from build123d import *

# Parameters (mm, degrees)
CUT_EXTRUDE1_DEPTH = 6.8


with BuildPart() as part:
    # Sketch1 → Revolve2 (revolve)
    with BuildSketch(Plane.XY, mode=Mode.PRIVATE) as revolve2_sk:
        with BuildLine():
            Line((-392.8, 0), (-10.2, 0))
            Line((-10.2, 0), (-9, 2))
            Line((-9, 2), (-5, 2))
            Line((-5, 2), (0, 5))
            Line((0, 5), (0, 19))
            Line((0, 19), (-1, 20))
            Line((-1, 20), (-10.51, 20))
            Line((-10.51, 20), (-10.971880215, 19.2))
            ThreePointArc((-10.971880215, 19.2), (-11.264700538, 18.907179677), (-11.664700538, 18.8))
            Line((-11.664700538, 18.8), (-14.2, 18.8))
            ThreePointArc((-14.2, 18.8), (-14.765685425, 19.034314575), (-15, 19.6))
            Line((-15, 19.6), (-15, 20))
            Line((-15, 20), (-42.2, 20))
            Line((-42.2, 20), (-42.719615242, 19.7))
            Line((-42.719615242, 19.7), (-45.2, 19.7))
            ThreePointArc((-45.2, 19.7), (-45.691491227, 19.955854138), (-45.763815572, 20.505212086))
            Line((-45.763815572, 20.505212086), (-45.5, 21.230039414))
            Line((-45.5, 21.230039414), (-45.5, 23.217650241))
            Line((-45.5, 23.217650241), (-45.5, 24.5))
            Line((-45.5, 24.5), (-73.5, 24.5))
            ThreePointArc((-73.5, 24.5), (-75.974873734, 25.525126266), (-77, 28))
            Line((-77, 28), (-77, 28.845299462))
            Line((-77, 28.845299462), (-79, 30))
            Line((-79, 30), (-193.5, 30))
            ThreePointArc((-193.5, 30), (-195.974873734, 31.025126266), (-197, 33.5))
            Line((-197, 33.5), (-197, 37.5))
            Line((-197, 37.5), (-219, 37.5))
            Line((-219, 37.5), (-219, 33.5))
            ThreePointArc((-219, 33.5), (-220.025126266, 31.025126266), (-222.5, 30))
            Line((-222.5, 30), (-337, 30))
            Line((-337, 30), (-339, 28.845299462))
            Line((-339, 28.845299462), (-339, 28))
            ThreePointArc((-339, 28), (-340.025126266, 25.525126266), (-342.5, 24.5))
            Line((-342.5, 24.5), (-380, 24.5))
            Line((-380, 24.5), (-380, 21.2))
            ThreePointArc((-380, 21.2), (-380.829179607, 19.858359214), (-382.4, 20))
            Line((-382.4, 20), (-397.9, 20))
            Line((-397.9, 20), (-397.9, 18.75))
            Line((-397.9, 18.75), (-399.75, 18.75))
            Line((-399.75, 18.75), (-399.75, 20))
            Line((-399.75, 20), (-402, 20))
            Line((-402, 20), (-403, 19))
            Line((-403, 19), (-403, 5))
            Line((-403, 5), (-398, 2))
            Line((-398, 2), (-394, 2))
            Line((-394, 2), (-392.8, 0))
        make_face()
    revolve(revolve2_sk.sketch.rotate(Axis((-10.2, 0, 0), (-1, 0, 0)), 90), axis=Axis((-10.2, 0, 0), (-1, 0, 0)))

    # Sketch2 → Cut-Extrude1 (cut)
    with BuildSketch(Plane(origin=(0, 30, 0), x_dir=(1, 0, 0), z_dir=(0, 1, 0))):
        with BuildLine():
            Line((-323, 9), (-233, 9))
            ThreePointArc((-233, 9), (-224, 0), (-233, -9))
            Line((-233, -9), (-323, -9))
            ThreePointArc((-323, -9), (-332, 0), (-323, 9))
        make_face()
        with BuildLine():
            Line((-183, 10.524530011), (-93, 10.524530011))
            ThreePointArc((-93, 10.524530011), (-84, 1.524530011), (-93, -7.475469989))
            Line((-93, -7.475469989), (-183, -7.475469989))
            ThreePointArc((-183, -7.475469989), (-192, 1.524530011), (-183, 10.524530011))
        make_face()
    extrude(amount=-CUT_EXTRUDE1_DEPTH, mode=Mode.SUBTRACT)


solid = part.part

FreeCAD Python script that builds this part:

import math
import FreeCAD as App
import Part
import Sketcher
Q = App.Units.Quantity

doc = App.newDocument("Part")
body = doc.addObject("PartDesign::Body", "Body")

# Sketch on XY plane
sketch1 = body.newObject("Sketcher::SketchObject", "Sketch")
sketch1.AttachmentSupport = (doc.getObject("XY_Plane"), [""])
sketch1.MapMode = "FlatFace"
sketch1.addGeometry([
    Part.LineSegment(App.Vector(-392.8, 0, 0), App.Vector(-10.2, 0, 0)),  # 0
    Part.LineSegment(App.Vector(-10.2, 0, 0), App.Vector(-9, 2, 0)),  # 1
    Part.LineSegment(App.Vector(-9, 2, 0), App.Vector(-5, 2, 0)),  # 2
    Part.LineSegment(App.Vector(-5, 2, 0), App.Vector(0, 5, 0)),  # 3
    Part.LineSegment(App.Vector(0, 5, 0), App.Vector(0, 19, 0)),  # 4
    Part.LineSegment(App.Vector(0, 19, 0), App.Vector(-1, 20, 0)),  # 5
    Part.LineSegment(App.Vector(-1, 20, 0), App.Vector(-10.51, 20, 0)),  # 6
    Part.LineSegment(App.Vector(-10.51, 20, 0), App.Vector(-10.97, 19.2, 0)),  # 7
    Part.ArcOfCircle(Part.Circle(App.Vector(-11.66, 19.6, 0), App.Vector(0, 0, 1), 0.8), math.radians(-90), math.radians(-30)),  # 8
    Part.LineSegment(App.Vector(-11.66, 18.8, 0), App.Vector(-14.2, 18.8, 0)),  # 9
    Part.ArcOfCircle(Part.Circle(App.Vector(-14.2, 19.6, 0), App.Vector(0, 0, 1), 0.8), math.radians(180), math.radians(270)),  # 10
    Part.LineSegment(App.Vector(-15, 19.6, 0), App.Vector(-15, 20, 0)),  # 11
    Part.LineSegment(App.Vector(-15, 20, 0), App.Vector(-42.2, 20, 0)),  # 12
    Part.LineSegment(App.Vector(-42.2, 20, 0), App.Vector(-42.72, 19.7, 0)),  # 13
    Part.LineSegment(App.Vector(-42.72, 19.7, 0), App.Vector(-45.2, 19.7, 0)),  # 14
    Part.ArcOfCircle(Part.Circle(App.Vector(-45.2, 20.3, 0), App.Vector(0, 0, 1), 0.6), math.radians(160), math.radians(270)),  # 15
    Part.LineSegment(App.Vector(-45.76, 20.51, 0), App.Vector(-45.5, 21.23, 0)),  # 16
    Part.LineSegment(App.Vector(-45.5, 21.23, 0), App.Vector(-45.5, 24.5, 0)),  # 17
    Part.LineSegment(App.Vector(-45.5, 24.5, 0), App.Vector(-73.5, 24.5, 0)),  # 18
    Part.ArcOfCircle(Part.Circle(App.Vector(-73.5, 28, 0), App.Vector(0, 0, 1), 3.5), math.radians(-180), math.radians(-90)),  # 19
    Part.LineSegment(App.Vector(-77, 28, 0), App.Vector(-77, 28.85, 0)),  # 20
    Part.LineSegment(App.Vector(-77, 28.85, 0), App.Vector(-79, 30, 0)),  # 21
    Part.LineSegment(App.Vector(-79, 30, 0), App.Vector(-193.5, 30, 0)),  # 22
    Part.ArcOfCircle(Part.Circle(App.Vector(-193.5, 33.5, 0), App.Vector(0, 0, 1), 3.5), math.radians(-180), math.radians(-90)),  # 23
    Part.LineSegment(App.Vector(-197, 33.5, 0), App.Vector(-197, 37.5, 0)),  # 24
    Part.LineSegment(App.Vector(-197, 37.5, 0), App.Vector(-219, 37.5, 0)),  # 25
    Part.LineSegment(App.Vector(-219, 37.5, 0), App.Vector(-219, 33.5, 0)),  # 26
    Part.ArcOfCircle(Part.Circle(App.Vector(-222.5, 33.5, 0), App.Vector(0, 0, 1), 3.5), math.radians(-90), math.radians(0)),  # 27
    Part.LineSegment(App.Vector(-222.5, 30, 0), App.Vector(-337, 30, 0)),  # 28
    Part.LineSegment(App.Vector(-337, 30, 0), App.Vector(-339, 28.85, 0)),  # 29
    Part.LineSegment(App.Vector(-339, 28.85, 0), App.Vector(-339, 28, 0)),  # 30
    Part.ArcOfCircle(Part.Circle(App.Vector(-342.5, 28, 0), App.Vector(0, 0, 1), 3.5), math.radians(-90), math.radians(0)),  # 31
    Part.LineSegment(App.Vector(-342.5, 24.5, 0), App.Vector(-380, 24.5, 0)),  # 32
    Part.LineSegment(App.Vector(-380, 24.5, 0), App.Vector(-380, 21.2, 0)),  # 33
    Part.ArcOfCircle(Part.Circle(App.Vector(-381.5, 21.2, 0), App.Vector(0, 0, 1), 1.5), math.radians(-127), math.radians(0)),  # 34
    Part.LineSegment(App.Vector(-382.4, 20, 0), App.Vector(-397.9, 20, 0)),  # 35
    Part.LineSegment(App.Vector(-397.9, 20, 0), App.Vector(-397.9, 18.75, 0)),  # 36
    Part.LineSegment(App.Vector(-397.9, 18.75, 0), App.Vector(-399.75, 18.75, 0)),  # 37
    Part.LineSegment(App.Vector(-399.75, 18.75, 0), App.Vector(-399.75, 20, 0)),  # 38
    Part.LineSegment(App.Vector(-399.75, 20, 0), App.Vector(-402, 20, 0)),  # 39
    Part.LineSegment(App.Vector(-402, 20, 0), App.Vector(-403, 19, 0)),  # 40
    Part.LineSegment(App.Vector(-403, 19, 0), App.Vector(-403, 5, 0)),  # 41
    Part.LineSegment(App.Vector(-403, 5, 0), App.Vector(-398, 2, 0)),  # 42
    Part.LineSegment(App.Vector(-398, 2, 0), App.Vector(-394, 2, 0)),  # 43
    Part.LineSegment(App.Vector(-394, 2, 0), App.Vector(-392.8, 0, 0)),  # 44
], False)
sketch1.addConstraint([
    Sketcher.Constraint("Coincident", 0, 2, 1, 1),
    Sketcher.Constraint("Coincident", 1, 2, 2, 1),
    Sketcher.Constraint("Coincident", 2, 2, 3, 1),
    Sketcher.Constraint("Coincident", 3, 2, 4, 1),
    Sketcher.Constraint("Coincident", 4, 2, 5, 1),
    Sketcher.Constraint("Coincident", 5, 2, 6, 1),
    Sketcher.Constraint("Coincident", 6, 2, 7, 1),
    Sketcher.Constraint("Tangent", 7, 2, 8, 2),
    Sketcher.Constraint("Tangent", 8, 1, 9, 1),
    Sketcher.Constraint("Tangent", 9, 2, 10, 2),
    Sketcher.Constraint("Tangent", 10, 1, 11, 1),
    Sketcher.Constraint("Coincident", 11, 2, 12, 1),
    Sketcher.Constraint("Coincident", 12, 2, 13, 1),
    Sketcher.Constraint("Coincident", 13, 2, 14, 1),
    Sketcher.Constraint("Tangent", 14, 2, 15, 2),
    Sketcher.Constraint("Tangent", 15, 1, 16, 1),
    Sketcher.Constraint("Coincident", 16, 2, 17, 1),
    Sketcher.Constraint("Coincident", 17, 2, 18, 1),
    Sketcher.Constraint("Tangent", 18, 2, 19, 2),
    Sketcher.Constraint("Tangent", 19, 1, 20, 1),
    Sketcher.Constraint("Coincident", 20, 2, 21, 1),
    Sketcher.Constraint("Coincident", 21, 2, 22, 1),
    Sketcher.Constraint("Tangent", 22, 2, 23, 2),
    Sketcher.Constraint("Tangent", 23, 1, 24, 1),
    Sketcher.Constraint("Coincident", 24, 2, 25, 1),
    Sketcher.Constraint("Coincident", 25, 2, 26, 1),
    Sketcher.Constraint("Tangent", 26, 2, 27, 2),
    Sketcher.Constraint("Tangent", 27, 1, 28, 1),
    Sketcher.Constraint("Coincident", 28, 2, 29, 1),
    Sketcher.Constraint("Coincident", 29, 2, 30, 1),
    Sketcher.Constraint("Tangent", 30, 2, 31, 2),
    Sketcher.Constraint("Tangent", 31, 1, 32, 1),
    Sketcher.Constraint("Coincident", 32, 2, 33, 1),
    Sketcher.Constraint("Tangent", 33, 2, 34, 2),
    Sketcher.Constraint("Coincident", 34, 1, 35, 1),
    Sketcher.Constraint("Coincident", 35, 2, 36, 1),
    Sketcher.Constraint("Coincident", 36, 2, 37, 1),
    Sketcher.Constraint("Coincident", 37, 2, 38, 1),
    Sketcher.Constraint("Coincident", 38, 2, 39, 1),
    Sketcher.Constraint("Coincident", 39, 2, 40, 1),
    Sketcher.Constraint("Coincident", 40, 2, 41, 1),
    Sketcher.Constraint("Coincident", 41, 2, 42, 1),
    Sketcher.Constraint("Coincident", 42, 2, 43, 1),
    Sketcher.Constraint("Coincident", 43, 2, 44, 1),
    Sketcher.Constraint("Coincident", 44, 2, 0, 1),
    Sketcher.Constraint("Horizontal", 0),
    Sketcher.Constraint("Horizontal", 2),
    Sketcher.Constraint("Vertical", 4),
    Sketcher.Constraint("Horizontal", 6),
    Sketcher.Constraint("Horizontal", 9),
    Sketcher.Constraint("Vertical", 11),
    Sketcher.Constraint("Horizontal", 12),
    Sketcher.Constraint("Horizontal", 14),
    Sketcher.Constraint("Vertical", 17),
    Sketcher.Constraint("Horizontal", 18),
    Sketcher.Constraint("Vertical", 20),
    Sketcher.Constraint("Horizontal", 22),
    Sketcher.Constraint("Vertical", 24),
    Sketcher.Constraint("Horizontal", 25),
    Sketcher.Constraint("Vertical", 26),
    Sketcher.Constraint("Horizontal", 28),
    Sketcher.Constraint("Vertical", 30),
    Sketcher.Constraint("Horizontal", 32),
    Sketcher.Constraint("Vertical", 33),
    Sketcher.Constraint("Horizontal", 35),
    Sketcher.Constraint("Vertical", 36),
    Sketcher.Constraint("Horizontal", 37),
    Sketcher.Constraint("Vertical", 38),
    Sketcher.Constraint("Horizontal", 39),
    Sketcher.Constraint("Vertical", 41),
    Sketcher.Constraint("Horizontal", 43),
    Sketcher.Constraint("Equal", 8, 10),
    Sketcher.Constraint("Equal", 19, 23),
    Sketcher.Constraint("Equal", 23, 27),
    Sketcher.Constraint("Equal", 27, 31),
    Sketcher.Constraint("PointOnObject", 0, 2, -1),
    Sketcher.Constraint("PointOnObject", 3, 2, -2),
    Sketcher.Constraint("Perpendicular", 7, 21),
    Sketcher.Constraint("Parallel", 13, 29),
    Sketcher.Constraint("Perpendicular", 5, 40),
    Sketcher.Constraint("Perpendicular", 1, 42),
    Sketcher.Constraint("Perpendicular", 3, 44),
    Sketcher.Constraint("Horizontal", 23, 3, 27, 3),
    Sketcher.Constraint("Horizontal", 19, 3, 31, 3),
    Sketcher.Constraint("Horizontal", 6, 2, 11, 2),
    Sketcher.Constraint("Horizontal", 20, 2, 29, 2),
    Sketcher.Constraint("Horizontal", 12, 2, 34, 1),
    Sketcher.Constraint("Horizontal", 35, 2, 38, 2),
    Sketcher.Constraint("Horizontal", 4, 2, 40, 2),
    Sketcher.Constraint("Horizontal", 3, 2, 41, 2),
    Sketcher.Constraint("Horizontal", 2, 2, 42, 2),
    Sketcher.Constraint("Equal", 22, 28),
    Sketcher.Constraint("Equal", 2, 43),
    Sketcher.Constraint("Equal", 43, 24),
    Sketcher.Constraint("Equal", 21, 29),
    Sketcher.Constraint("Equal", 5, 40),
    Sketcher.Constraint("Equal", 3, 42),
    Sketcher.Constraint("Radius", 8, Q("0.8 mm")),
    Sketcher.Constraint("Radius", 15, Q("0.6 mm")),
    Sketcher.Constraint("Radius", 19, Q("3.5 mm")),
    Sketcher.Constraint("Radius", 34, Q("1.5 mm")),
    Sketcher.Constraint("DistanceX", 2, 1, 2, 2, Q("4 mm")),
    Sketcher.Constraint("DistanceX", 18, 2, 18, 1, Q("28 mm")),
    Sketcher.Constraint("DistanceX", 25, 2, 25, 1, Q("22 mm")),
    Sketcher.Constraint("DistanceY", 4, 1, 4, 2, Q("14 mm")),
    Sketcher.Constraint("Angle", 7, Q("-120 deg")),
    Sketcher.Constraint("Angle", 16, Q("70 deg")),
    Sketcher.Constraint("DistanceX", 0, 1, 0, 2, Q("382.6 mm")),
    Sketcher.Constraint("DistanceX", 12, 2, 12, 1, Q("27.2 mm")),
    Sketcher.Constraint("DistanceX", 22, 2, 22, 1, Q("114.5 mm")),
    Sketcher.Constraint("DistanceX", 32, 2, 32, 1, Q("37.5 mm")),
    Sketcher.Constraint("DistanceX", 35, 2, 35, 1, Q("15.5 mm")),
    Sketcher.Constraint("DistanceY", 11, 1, 11, 2, Q("0.4 mm")),
    Sketcher.Constraint("DistanceY", 33, 2, 33, 1, Q("3.3 mm")),
    Sketcher.Constraint("DistanceY", -1, 1, 19, 3, Q("28 mm")),
    Sketcher.Constraint("DistanceX", 1, 2, -1, 1, Q("9 mm")),
    Sketcher.Constraint("DistanceY", -1, 1, 1, 2, Q("2 mm")),
    Sketcher.Constraint("DistanceY", -1, 1, 3, 2, Q("5 mm")),
    Sketcher.Constraint("DistanceX", 5, 2, -1, 1, Q("1 mm")),
    Sketcher.Constraint("DistanceX", 10, 1, -1, 1, Q("15 mm")),
    Sketcher.Constraint("DistanceX", 19, 1, -1, 1, Q("77 mm")),
    Sketcher.Constraint("DistanceX", 21, 2, -1, 1, Q("79 mm")),
    Sketcher.Constraint("DistanceY", -1, 1, 21, 2, Q("30 mm")),
    Sketcher.Constraint("DistanceX", 15, 3, 10, 3, Q("31 mm")),
    Sketcher.Constraint("Distance", 13, Q("0.6 mm")),
    Sketcher.Constraint("DistanceX", 6, 2, 6, 1, Q("9.51 mm")),
    Sketcher.Constraint("DistanceX", 37, 2, 37, 1, Q("1.85 mm")),
    Sketcher.Constraint("DistanceY", 36, 2, 36, 1, Q("1.25 mm")),
])
revolution = body.newObject("PartDesign::Revolution", "Revolution")
revolution.Profile = sketch1
revolution.ReferenceAxis = (sketch1, ["H_Axis"])
revolution.Angle = 360

# Sketch on XZ plane
sketch2 = body.newObject("Sketcher::SketchObject", "Sketch001")
sketch2.AttachmentSupport = (doc.getObject("XZ_Plane"), [""])
sketch2.MapMode = "FlatFace"
sketch2.AttachmentOffset = App.Placement(App.Vector(0, 0, -30), App.Rotation())
sketch2.addGeometry([
    Part.LineSegment(App.Vector(-233, -9, 0), App.Vector(-323, -9, 0)),  # 0
    Part.ArcOfCircle(Part.Circle(App.Vector(-323, 0, 0), App.Vector(0, 0, 1), 9), math.radians(90), math.radians(270)),  # 1
    Part.LineSegment(App.Vector(-323, 9, 0), App.Vector(-233, 9, 0)),  # 2
    Part.ArcOfCircle(Part.Circle(App.Vector(-233, 0, 0), App.Vector(0, 0, 1), 9), math.radians(-90), math.radians(90)),  # 3
    Part.LineSegment(App.Vector(-93, -11, 0), App.Vector(-183, -11, 0)),  # 4
    Part.ArcOfCircle(Part.Circle(App.Vector(-183, -2, 0), App.Vector(0, 0, 1), 9), math.radians(90), math.radians(270)),  # 5
    Part.LineSegment(App.Vector(-183, 7, 0), App.Vector(-93, 7, 0)),  # 6
    Part.ArcOfCircle(Part.Circle(App.Vector(-93, -2, 0), App.Vector(0, 0, 1), 9), math.radians(-90), math.radians(90)),  # 7
], False)
sketch2.addConstraint([
    Sketcher.Constraint("Tangent", 0, 2, 1, 2),
    Sketcher.Constraint("Tangent", 1, 1, 2, 1),
    Sketcher.Constraint("Tangent", 2, 2, 3, 2),
    Sketcher.Constraint("Tangent", 3, 1, 0, 1),
    Sketcher.Constraint("Tangent", 4, 2, 5, 2),
    Sketcher.Constraint("Tangent", 5, 1, 6, 1),
    Sketcher.Constraint("Tangent", 6, 2, 7, 2),
    Sketcher.Constraint("Tangent", 7, 1, 4, 1),
    Sketcher.Constraint("Horizontal", 0),
    Sketcher.Constraint("Horizontal", 2),
    Sketcher.Constraint("Horizontal", 4),
    Sketcher.Constraint("Horizontal", 6),
    Sketcher.Constraint("Equal", 3, 5),
    Sketcher.Constraint("PointOnObject", 1, 3, -1),
    Sketcher.Constraint("Equal", 2, 4),
    Sketcher.Constraint("Radius", 1, Q("9 mm")),
    Sketcher.Constraint("DistanceX", 0, 2, 0, 1, Q("90 mm")),
    Sketcher.Constraint("DistanceX", 1, 3, -1, 1, Q("323 mm")),
    Sketcher.Constraint("DistanceX", 5, 3, -1, 1, Q("183 mm")),
    Sketcher.Constraint("DistanceY", 5, 3, -1, 1, Q("1.52453 mm")),
])
pocket1 = body.newObject("PartDesign::Pocket", "Pocket")
pocket1.Profile = sketch2
pocket1.Length = 6.8
pocket1.Reversed = True

doc.recompute()
